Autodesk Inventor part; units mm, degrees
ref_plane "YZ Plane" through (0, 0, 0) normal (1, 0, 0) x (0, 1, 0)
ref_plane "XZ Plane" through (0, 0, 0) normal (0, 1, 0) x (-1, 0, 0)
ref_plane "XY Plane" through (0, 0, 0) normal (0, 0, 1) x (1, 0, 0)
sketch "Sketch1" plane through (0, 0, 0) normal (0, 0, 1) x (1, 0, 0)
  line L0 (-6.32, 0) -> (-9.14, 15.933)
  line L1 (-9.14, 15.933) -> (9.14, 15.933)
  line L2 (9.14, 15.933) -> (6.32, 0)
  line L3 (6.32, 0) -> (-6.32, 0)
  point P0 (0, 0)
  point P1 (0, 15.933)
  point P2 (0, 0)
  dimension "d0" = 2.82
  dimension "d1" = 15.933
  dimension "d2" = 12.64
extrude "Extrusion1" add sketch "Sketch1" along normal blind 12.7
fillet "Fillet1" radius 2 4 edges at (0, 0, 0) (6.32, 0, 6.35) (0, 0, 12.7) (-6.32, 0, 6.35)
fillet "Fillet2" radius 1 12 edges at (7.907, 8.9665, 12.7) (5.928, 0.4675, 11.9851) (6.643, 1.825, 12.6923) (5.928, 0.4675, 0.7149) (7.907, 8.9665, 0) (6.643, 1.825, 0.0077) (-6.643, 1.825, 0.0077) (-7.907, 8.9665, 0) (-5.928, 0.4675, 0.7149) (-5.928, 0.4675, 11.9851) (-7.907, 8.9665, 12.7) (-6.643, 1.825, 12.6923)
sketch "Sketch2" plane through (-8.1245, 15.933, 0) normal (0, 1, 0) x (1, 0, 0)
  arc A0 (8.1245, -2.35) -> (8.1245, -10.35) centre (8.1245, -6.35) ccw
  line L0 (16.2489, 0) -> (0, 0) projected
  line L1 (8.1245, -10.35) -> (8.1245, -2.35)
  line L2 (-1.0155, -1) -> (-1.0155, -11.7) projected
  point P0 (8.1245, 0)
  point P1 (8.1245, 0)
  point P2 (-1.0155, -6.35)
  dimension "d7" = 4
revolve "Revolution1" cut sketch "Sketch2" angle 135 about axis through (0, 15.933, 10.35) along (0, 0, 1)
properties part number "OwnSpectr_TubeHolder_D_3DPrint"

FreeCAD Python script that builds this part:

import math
import FreeCAD as App
import Part
import Sketcher

V = App.Vector


def edges_at(feature, points):
    """Names of the edges that pass closest to the given points."""
    edges = feature.Shape.Edges
    near = lambda p: min(range(len(edges)), key=lambda i: edges[i].distToShape(Part.Vertex(*p))[0])
    return sorted({f"Edge{near(p) + 1}" for p in points})

doc = App.newDocument("Part")
params = doc.addObject("Spreadsheet::Sheet", "Params")
for row, (alias, value) in enumerate([
    ("sketch1_width", "12.64 mm"),
    ("pad1_length", "12.7 mm"),
    ("fillet_radius", "2 mm"),
    ("fillet2_radius", "1 mm"),
    ("sketch2_radius", "4 mm"),
    ("groove_angle", "135 deg"),
], start=1):
    params.set(f"A{row}", alias)
    params.set(f"B{row}", "=" + value)
    params.setAlias(f"B{row}", alias)

body = doc.addObject("PartDesign::Body", "Body")

# Sketch on XY plane
sketch1 = body.newObject("Sketcher::SketchObject", "Sketch")
sketch1.AttachmentSupport = (doc.getObject("XY_Plane"), [""])
sketch1.MapMode = "FlatFace"
sketch1.addGeometry([
    Part.LineSegment(V(-9, 16, 0), V(-6, 0, 0)),
    Part.LineSegment(V(-6, 0, 0), V(6, 0, 0)),
    Part.LineSegment(V(6, 0, 0), V(9, 16, 0)),
    Part.LineSegment(V(9, 16, 0), V(-9, 16, 0)),
], False)
sketch1.addConstraint([
    Sketcher.Constraint("Coincident", 0, 2, 1, 1),
    Sketcher.Constraint("Coincident", 1, 2, 2, 1),
    Sketcher.Constraint("Coincident", 2, 2, 3, 1),
    Sketcher.Constraint("Coincident", 3, 2, 0, 1),
    Sketcher.Constraint("Horizontal", 1),
    Sketcher.Constraint("Horizontal", 3),
    Sketcher.Constraint("Symmetric", 0, 2, 1, 2, -1, 1),
    Sketcher.Constraint("Equal", 0, 2),
    Sketcher.Constraint("DistanceX", 1, 1, 1, 2, 12.64),
    Sketcher.Constraint("DistanceX", 1, 2, 2, 2, 2.82),
    Sketcher.Constraint("DistanceY", -1, 1, 2, 2, 15.933),
])
sketch1.setExpression("Constraints[8]", "Params.sketch1_width")
pad1 = body.newObject("PartDesign::Pad", "Pad")
pad1.Profile = sketch1
pad1.setExpression("Length", "Params.pad1_length")
doc.recompute()

fillet = body.newObject("PartDesign::Fillet", "Fillet")
fillet.Base = (pad1, edges_at(pad1, [
    (0, 0, 0),
    (6.32, 0, 6.35),
    (0, 0, 12.7),
    (-6.32, 0, 6.35),
]))
fillet.setExpression("Radius", "Params.fillet_radius")
doc.recompute()

fillet2 = body.newObject("PartDesign::Fillet", "Fillet001")
fillet2.Base = (fillet, edges_at(fillet, [
    (7.907, 8.966, 12.7),
    (5.928, 0.468, 11.985),
    (6.643, 1.825, 12.692),
    (5.928, 0.468, 0.715),
    (7.907, 8.966, 0),
    (6.643, 1.825, 0.008),
    (-6.643, 1.825, 0.008),
    (-7.907, 8.966, 0),
    (-5.928, 0.468, 0.715),
    (-5.928, 0.468, 11.985),
    (-7.907, 8.966, 12.7),
    (-6.643, 1.825, 12.692),
]))
fillet2.setExpression("Radius", "Params.fillet2_radius")

# Sketch on XZ plane
sketch2 = body.newObject("Sketcher::SketchObject", "Sketch001")
sketch2.AttachmentSupport = (doc.getObject("XZ_Plane"), [""])
sketch2.MapMode = "FlatFace"
sketch2.AttachmentOffset = App.Placement(V(0, 0, -15.933), App.Rotation())
sketch2.addGeometry([
    Part.LineSegment(V(0, 10.3, 0), V(0, 2.4, 0)),
    Part.ArcOfCircle(Part.Circle(V(0, 6.3, 0), V(0, 0, 1), 4), math.radians(90), math.radians(270)),
], False)
sketch2.addConstraint([
    Sketcher.Constraint("Coincident", 0, 1, 1, 1),
    Sketcher.Constraint("Coincident", 1, 2, 0, 2),
    Sketcher.Constraint("Vertical", 0),
    Sketcher.Constraint("PointOnObject", 1, 3, -2),
    Sketcher.Constraint("PointOnObject", 0, 1, -2),
    Sketcher.Constraint("Radius", 1, 4.0),
    Sketcher.Constraint("DistanceY", -1, 1, 1, 3, 6.35),
])
sketch2.setExpression("Constraints[5]", "Params.sketch2_radius")
groove = body.newObject("PartDesign::Groove", "Groove")
groove.Profile = sketch2
groove.ReferenceAxis = (sketch2, ["V_Axis"])
groove.setExpression("Angle", "Params.groove_angle")

doc.recompute()
